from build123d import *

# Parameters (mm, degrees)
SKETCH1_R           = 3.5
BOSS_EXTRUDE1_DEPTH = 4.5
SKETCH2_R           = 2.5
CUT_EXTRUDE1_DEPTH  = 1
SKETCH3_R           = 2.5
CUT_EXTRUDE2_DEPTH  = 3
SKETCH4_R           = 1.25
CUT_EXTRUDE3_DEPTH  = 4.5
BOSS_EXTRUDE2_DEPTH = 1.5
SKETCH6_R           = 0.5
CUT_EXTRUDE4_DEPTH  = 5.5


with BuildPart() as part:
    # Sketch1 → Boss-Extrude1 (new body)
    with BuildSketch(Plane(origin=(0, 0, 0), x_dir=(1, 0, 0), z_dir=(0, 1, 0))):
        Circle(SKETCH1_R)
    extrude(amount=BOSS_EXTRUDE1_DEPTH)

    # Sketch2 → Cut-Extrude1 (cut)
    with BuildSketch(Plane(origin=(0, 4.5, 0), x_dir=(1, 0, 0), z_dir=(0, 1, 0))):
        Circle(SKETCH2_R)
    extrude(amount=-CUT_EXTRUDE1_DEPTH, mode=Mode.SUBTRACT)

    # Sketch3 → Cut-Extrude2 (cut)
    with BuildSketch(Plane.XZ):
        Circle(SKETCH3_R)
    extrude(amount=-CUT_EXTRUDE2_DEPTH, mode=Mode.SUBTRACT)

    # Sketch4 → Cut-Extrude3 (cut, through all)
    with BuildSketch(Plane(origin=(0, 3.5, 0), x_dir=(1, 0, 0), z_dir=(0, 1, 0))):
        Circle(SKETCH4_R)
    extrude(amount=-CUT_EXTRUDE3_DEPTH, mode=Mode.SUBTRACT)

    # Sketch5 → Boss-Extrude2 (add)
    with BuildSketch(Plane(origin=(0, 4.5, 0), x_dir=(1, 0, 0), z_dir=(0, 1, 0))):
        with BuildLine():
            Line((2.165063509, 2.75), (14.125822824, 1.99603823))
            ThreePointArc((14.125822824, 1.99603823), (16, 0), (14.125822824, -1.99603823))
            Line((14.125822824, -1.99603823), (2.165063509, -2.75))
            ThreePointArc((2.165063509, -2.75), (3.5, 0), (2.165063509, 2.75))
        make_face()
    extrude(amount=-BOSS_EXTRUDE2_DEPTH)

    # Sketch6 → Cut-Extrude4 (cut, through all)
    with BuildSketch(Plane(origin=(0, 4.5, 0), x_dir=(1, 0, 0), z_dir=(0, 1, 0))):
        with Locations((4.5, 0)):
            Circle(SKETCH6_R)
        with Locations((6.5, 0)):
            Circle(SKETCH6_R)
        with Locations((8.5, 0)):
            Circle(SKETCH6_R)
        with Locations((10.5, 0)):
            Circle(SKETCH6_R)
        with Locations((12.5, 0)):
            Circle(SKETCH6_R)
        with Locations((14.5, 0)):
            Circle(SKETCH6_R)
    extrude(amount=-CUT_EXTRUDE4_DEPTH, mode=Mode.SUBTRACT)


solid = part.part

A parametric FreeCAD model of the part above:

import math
import FreeCAD as App
import Part
import Sketcher
from FreeCAD import Vector
Q = App.Units.Quantity

doc = App.newDocument("Part")
body = doc.addObject("PartDesign::Body", "Body")

sketch1 = body.newObject("Sketcher::SketchObject", "Sketch")
sketch1.AttachmentSupport = (doc.getObject("XZ_Plane"), [""])
sketch1.MapMode = "FlatFace"
sketch1.addGeometry(Part.Circle(Vector(0, 0, 0), Vector(0, 0, 1), 3.5), False)
sketch1.addConstraint([
    Sketcher.Constraint("Coincident", 0, 3, -1, 1),
    Sketcher.Constraint("Diameter", 0, Q("7 mm")),
])
pad1 = body.newObject("PartDesign::Pad", "Pad")
pad1.Profile = sketch1
pad1.Length = 4.5
pad1.Reversed = True

sketch2 = body.newObject("Sketcher::SketchObject", "Sketch001")
sketch2.AttachmentSupport = (doc.getObject("XZ_Plane"), [""])
sketch2.MapMode = "FlatFace"
sketch2.AttachmentOffset = App.Placement(Vector(0, 0, -4.5), App.Rotation())
sketch2.addGeometry(Part.Circle(Vector(0, 0, 0), Vector(0, 0, 1), 2.5), False)
sketch2.addConstraint([
    Sketcher.Constraint("Coincident", 0, 3, -1, 1),
    Sketcher.Constraint("Diameter", 0, Q("5 mm")),
])
pocket1 = body.newObject("PartDesign::Pocket", "Pocket")
pocket1.Profile = sketch2
pocket1.Length = 1
pocket1.Reversed = True

sketch3 = body.newObject("Sketcher::SketchObject", "Sketch002")
sketch3.AttachmentSupport = (doc.getObject("XZ_Plane"), [""])
sketch3.MapMode = "FlatFace"
sketch3.addGeometry(Part.Circle(Vector(0, 0, 0), Vector(0, 0, 1), 2.5), False)
sketch3.addConstraint([
    Sketcher.Constraint("Coincident", 0, 3, -1, 1),
    Sketcher.Constraint("Diameter", 0, Q("5 mm")),
])
pocket2 = body.newObject("PartDesign::Pocket", "Pocket001")
pocket2.Profile = sketch3
pocket2.Length = 3

sketch4 = body.newObject("Sketcher::SketchObject", "Sketch003")
sketch4.AttachmentSupport = (doc.getObject("XZ_Plane"), [""])
sketch4.MapMode = "FlatFace"
sketch4.AttachmentOffset = App.Placement(Vector(0, 0, -3.5), App.Rotation())
sketch4.addGeometry(Part.Circle(Vector(0, 0, 0), Vector(0, 0, 1), 1.2), False)
sketch4.addConstraint([
    Sketcher.Constraint("Coincident", 0, 3, -1, 1),
    Sketcher.Constraint("Diameter", 0, Q("2.5 mm")),
])
pocket3 = body.newObject("PartDesign::Pocket", "Pocket002")
pocket3.Profile = sketch4
pocket3.Type = "ThroughAll"
pocket3.Reversed = True

sketch5 = body.newObject("Sketcher::SketchObject", "Sketch004")
sketch5.AttachmentSupport = (doc.getObject("XZ_Plane"), [""])
sketch5.MapMode = "FlatFace"
sketch5.AttachmentOffset = App.Placement(Vector(0, 0, -4.5), App.Rotation())
sketch5.addGeometry([
    Part.LineSegment(Vector(14.1, -2, 0), Vector(2.2, -2.8, 0)),
    Part.ArcOfCircle(Part.Circle(Vector(0, 0, 0), Vector(0, 0, 1), 3.5), math.radians(-52), math.radians(52)),
    Part.LineSegment(Vector(2.2, 2.8, 0), Vector(14.1, 2, 0)),
    Part.ArcOfCircle(Part.Circle(Vector(14, 0, 0), Vector(0, 0, 1), 2), math.radians(-86), math.radians(86)),
], False)
sketch5.addConstraint([
    Sketcher.Constraint("Coincident", 0, 2, 1, 1),
    Sketcher.Constraint("Coincident", 1, 2, 2, 1),
    Sketcher.Constraint("Tangent", 2, 2, 3, 2),
    Sketcher.Constraint("Tangent", 3, 1, 0, 1),
    Sketcher.Constraint("Coincident", 1, 3, -1, 1),
    Sketcher.Constraint("Symmetric", 2, 2, 3, 1, -1),
    Sketcher.Constraint("Radius", 3, Q("2 mm")),
    Sketcher.Constraint("Radius", 1, Q("3.5 mm")),
    Sketcher.Constraint("DistanceX", -1, 1, 3, 3, Q("14 mm")),
    Sketcher.Constraint("DistanceY", 0, 2, 1, 2, Q("5.5 mm")),
])
pad2 = body.newObject("PartDesign::Pad", "Pad001")
pad2.Profile = sketch5
pad2.Length = 1.5

sketch6 = body.newObject("Sketcher::SketchObject", "Sketch005")
sketch6.AttachmentSupport = (doc.getObject("XZ_Plane"), [""])
sketch6.MapMode = "FlatFace"
sketch6.AttachmentOffset = App.Placement(Vector(0, 0, -4.5), App.Rotation())
sketch6.addGeometry([
    Part.Circle(Vector(4.5, 0, 0), Vector(0, 0, 1), 0.5),
    Part.Circle(Vector(6.5, 0, 0), Vector(0, 0, 1), 0.5),
    Part.Circle(Vector(8.5, 0, 0), Vector(0, 0, 1), 0.5),
    Part.Circle(Vector(10.5, 0, 0), Vector(0, 0, 1), 0.5),
    Part.Circle(Vector(12.5, 0, 0), Vector(0, 0, 1), 0.5),
    Part.Circle(Vector(14.5, 0, 0), Vector(0, 0, 1), 0.5),
], False)
sketch6.addConstraint([
    Sketcher.Constraint("Equal", 0, 1),
    Sketcher.Constraint("Equal", 1, 2),
    Sketcher.Constraint("Equal", 2, 3),
    Sketcher.Constraint("Equal", 3, 4),
    Sketcher.Constraint("Equal", 4, 5),
    Sketcher.Constraint("PointOnObject", 0, 3, -1),
    Sketcher.Constraint("PointOnObject", 1, 3, -1),
    Sketcher.Constraint("PointOnObject", 2, 3, -1),
    Sketcher.Constraint("PointOnObject", 3, 3, -1),
    Sketcher.Constraint("PointOnObject", 4, 3, -1),
    Sketcher.Constraint("PointOnObject", 5, 3, -1),
    Sketcher.Constraint("Diameter", 0, Q("1 mm")),
    Sketcher.Constraint("DistanceX", 0, 3, 1, 3, Q("2 mm")),
    Sketcher.Constraint("DistanceX", 1, 3, 2, 3, Q("2 mm")),
    Sketcher.Constraint("DistanceX", 2, 3, 3, 3, Q("2 mm")),
    Sketcher.Constraint("DistanceX", 3, 3, 4, 3, Q("2 mm")),
    Sketcher.Constraint("DistanceX", 4, 3, 5, 3, Q("2 mm")),
    Sketcher.Constraint("DistanceX", -1, 1, 0, 3, Q("4.5 mm")),
])
pocket4 = body.newObject("PartDesign::Pocket", "Pocket003")
pocket4.Profile = sketch6
pocket4.Type = "ThroughAll"
pocket4.Reversed = True

doc.recompute()
